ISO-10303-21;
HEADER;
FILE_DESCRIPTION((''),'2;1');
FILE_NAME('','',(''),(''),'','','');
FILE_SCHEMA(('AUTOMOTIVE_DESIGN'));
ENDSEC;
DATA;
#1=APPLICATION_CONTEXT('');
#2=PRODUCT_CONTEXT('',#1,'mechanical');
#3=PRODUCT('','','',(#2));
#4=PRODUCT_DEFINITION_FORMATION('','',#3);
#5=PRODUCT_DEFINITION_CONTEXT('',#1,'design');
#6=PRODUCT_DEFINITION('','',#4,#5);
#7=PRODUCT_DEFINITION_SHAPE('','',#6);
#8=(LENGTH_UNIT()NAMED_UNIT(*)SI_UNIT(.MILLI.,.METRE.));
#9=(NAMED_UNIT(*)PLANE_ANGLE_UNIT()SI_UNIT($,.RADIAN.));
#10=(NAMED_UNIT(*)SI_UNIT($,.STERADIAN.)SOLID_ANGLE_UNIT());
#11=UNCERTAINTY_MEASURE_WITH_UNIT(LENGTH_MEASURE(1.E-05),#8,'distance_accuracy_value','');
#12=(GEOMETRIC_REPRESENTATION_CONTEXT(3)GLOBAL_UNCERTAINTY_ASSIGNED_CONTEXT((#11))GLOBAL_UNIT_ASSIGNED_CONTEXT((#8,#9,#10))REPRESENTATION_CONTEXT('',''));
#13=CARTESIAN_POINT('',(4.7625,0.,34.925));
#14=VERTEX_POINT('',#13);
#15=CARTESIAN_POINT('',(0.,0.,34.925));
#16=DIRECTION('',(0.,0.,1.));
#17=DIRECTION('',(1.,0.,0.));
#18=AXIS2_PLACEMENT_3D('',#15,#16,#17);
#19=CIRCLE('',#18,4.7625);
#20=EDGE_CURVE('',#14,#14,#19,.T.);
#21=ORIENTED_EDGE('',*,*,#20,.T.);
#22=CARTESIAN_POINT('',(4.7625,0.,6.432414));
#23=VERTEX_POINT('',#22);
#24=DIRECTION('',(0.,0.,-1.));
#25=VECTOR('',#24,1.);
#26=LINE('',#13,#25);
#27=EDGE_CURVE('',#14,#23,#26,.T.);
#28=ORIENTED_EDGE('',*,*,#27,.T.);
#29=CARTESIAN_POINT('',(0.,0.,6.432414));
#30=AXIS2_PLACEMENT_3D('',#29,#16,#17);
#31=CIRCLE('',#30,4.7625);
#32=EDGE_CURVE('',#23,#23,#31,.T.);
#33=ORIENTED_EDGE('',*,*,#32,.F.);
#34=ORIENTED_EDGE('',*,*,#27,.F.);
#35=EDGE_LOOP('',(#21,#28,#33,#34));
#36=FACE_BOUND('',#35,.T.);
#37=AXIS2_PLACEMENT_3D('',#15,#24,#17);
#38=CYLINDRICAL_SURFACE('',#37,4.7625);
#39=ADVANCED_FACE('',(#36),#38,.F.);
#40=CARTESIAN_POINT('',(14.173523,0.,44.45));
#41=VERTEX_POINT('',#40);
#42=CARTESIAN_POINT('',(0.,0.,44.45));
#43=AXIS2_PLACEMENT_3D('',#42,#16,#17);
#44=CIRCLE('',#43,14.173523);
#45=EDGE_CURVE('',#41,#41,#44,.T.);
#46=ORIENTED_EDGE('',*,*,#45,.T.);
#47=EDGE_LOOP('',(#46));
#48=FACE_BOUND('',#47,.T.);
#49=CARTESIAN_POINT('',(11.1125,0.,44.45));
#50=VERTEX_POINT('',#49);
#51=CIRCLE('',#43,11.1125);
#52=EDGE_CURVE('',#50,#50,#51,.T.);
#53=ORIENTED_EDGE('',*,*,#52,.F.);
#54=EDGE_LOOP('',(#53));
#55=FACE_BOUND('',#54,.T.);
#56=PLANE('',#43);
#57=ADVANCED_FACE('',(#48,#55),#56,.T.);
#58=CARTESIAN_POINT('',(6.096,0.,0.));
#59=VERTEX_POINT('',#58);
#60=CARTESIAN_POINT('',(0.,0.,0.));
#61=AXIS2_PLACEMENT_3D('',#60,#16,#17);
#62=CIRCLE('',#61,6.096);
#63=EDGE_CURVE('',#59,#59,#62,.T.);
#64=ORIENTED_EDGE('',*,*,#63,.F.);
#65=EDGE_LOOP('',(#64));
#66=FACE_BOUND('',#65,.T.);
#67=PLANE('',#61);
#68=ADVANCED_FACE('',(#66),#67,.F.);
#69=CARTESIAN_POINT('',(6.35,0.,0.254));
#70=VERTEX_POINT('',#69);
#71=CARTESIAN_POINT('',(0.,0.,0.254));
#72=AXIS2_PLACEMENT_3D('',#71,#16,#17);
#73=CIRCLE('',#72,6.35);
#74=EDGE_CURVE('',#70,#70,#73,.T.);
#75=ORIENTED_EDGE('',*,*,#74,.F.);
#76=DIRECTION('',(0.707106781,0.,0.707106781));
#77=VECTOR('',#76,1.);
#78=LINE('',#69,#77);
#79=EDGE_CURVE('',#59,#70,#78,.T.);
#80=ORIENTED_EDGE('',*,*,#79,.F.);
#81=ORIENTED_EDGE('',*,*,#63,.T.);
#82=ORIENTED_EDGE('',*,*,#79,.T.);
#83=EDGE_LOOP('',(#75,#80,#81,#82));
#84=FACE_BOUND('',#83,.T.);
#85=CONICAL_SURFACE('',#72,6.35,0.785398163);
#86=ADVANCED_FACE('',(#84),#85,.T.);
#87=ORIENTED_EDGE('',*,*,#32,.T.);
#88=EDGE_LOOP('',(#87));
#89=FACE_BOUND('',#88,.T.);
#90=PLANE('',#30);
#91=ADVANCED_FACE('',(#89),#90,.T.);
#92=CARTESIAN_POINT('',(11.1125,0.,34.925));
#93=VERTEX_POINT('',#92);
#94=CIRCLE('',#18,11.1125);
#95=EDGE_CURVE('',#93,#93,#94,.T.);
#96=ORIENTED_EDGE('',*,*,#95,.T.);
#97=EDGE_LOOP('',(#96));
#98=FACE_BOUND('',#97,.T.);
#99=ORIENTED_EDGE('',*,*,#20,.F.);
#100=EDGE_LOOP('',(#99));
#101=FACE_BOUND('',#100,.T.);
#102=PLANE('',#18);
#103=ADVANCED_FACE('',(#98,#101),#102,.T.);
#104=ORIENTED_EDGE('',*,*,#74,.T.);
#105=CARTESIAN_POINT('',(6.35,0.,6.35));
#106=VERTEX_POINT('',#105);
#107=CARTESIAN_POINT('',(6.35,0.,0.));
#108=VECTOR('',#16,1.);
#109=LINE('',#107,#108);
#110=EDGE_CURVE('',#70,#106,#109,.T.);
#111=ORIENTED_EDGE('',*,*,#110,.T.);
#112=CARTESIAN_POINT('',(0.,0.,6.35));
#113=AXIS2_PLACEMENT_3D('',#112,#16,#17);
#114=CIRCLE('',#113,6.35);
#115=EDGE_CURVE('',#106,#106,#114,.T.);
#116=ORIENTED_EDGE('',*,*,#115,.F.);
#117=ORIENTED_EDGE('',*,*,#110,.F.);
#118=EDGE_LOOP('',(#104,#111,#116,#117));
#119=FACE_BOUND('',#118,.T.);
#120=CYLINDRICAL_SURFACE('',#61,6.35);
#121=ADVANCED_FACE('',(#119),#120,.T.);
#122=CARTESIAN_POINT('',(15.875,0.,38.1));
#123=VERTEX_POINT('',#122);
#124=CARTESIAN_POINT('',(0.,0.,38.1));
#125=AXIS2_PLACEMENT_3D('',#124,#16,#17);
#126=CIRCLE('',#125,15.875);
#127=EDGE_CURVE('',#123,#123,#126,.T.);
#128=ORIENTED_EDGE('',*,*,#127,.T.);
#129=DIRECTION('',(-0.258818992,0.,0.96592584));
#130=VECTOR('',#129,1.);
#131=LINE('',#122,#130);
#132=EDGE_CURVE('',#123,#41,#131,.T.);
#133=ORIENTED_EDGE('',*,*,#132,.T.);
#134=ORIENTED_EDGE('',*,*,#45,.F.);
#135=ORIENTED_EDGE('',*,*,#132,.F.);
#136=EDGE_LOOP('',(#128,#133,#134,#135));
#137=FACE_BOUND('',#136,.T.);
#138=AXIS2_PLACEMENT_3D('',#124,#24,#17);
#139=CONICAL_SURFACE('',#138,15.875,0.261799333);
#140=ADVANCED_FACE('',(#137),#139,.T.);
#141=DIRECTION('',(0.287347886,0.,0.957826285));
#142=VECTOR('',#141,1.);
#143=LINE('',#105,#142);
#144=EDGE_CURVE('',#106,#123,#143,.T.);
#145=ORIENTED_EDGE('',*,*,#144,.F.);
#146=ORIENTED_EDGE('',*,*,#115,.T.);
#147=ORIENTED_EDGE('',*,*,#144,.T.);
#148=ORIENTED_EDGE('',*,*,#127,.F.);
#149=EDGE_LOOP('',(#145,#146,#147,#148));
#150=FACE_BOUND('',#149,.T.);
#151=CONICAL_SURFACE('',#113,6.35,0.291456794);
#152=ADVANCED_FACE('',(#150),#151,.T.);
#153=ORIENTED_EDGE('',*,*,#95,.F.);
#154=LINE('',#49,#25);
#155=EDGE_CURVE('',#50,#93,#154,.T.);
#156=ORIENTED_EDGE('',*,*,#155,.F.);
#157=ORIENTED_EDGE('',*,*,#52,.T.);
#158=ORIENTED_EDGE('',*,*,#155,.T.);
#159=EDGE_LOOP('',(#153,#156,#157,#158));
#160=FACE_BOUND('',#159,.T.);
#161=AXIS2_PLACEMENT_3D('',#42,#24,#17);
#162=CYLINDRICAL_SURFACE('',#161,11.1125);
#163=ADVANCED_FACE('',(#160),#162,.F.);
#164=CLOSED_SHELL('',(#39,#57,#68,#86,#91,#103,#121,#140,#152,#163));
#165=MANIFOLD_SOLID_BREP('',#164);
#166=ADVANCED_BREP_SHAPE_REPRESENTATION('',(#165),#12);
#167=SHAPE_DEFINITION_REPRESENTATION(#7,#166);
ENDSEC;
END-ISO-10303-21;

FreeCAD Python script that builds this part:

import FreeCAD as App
import Part
import Sketcher
Q = App.Units.Quantity


def edges_at(feature, points):
    """Names of the edges that pass closest to the given points."""
    edges = feature.Shape.Edges
    near = lambda p: min(range(len(edges)), key=lambda i: edges[i].distToShape(Part.Vertex(*p))[0])
    return sorted({f"Edge{near(p) + 1}" for p in points})

doc = App.newDocument("Part")
body = doc.addObject("PartDesign::Body", "Body")

# Sketch on XZ plane
sketch1 = body.newObject("Sketcher::SketchObject", "Sketch")
sketch1.AttachmentSupport = (doc.getObject("XZ_Plane"), [""])
sketch1.MapMode = "FlatFace"
sketch1.addGeometry(Part.LineSegment(App.Vector(6.3, 6.3, 0), App.Vector(15.9, 38.1, 0)), False)
sketch1.addGeometry(Part.LineSegment(App.Vector(15.9, 38.1, 0), App.Vector(14.2, 44.5, 0)), False)
sketch1.addGeometry(Part.LineSegment(App.Vector(14.2, 44.5, 0), App.Vector(11.1, 44.5, 0)), False)
sketch1.addGeometry(Part.LineSegment(App.Vector(11.1, 44.5, 0), App.Vector(11.1, 34.9, 0)), False)
sketch1.addGeometry(Part.LineSegment(App.Vector(11.1, 34.9, 0), App.Vector(4.8, 34.9, 0)), False)
sketch1.addGeometry(Part.LineSegment(App.Vector(4.8, 34.9, 0), App.Vector(4.8, 6.4, 0)), False)
sketch1.addGeometry(Part.LineSegment(App.Vector(4.8, 6.4, 0), App.Vector(0, 6.4, 0)), False)
sketch1.addGeometry(Part.LineSegment(App.Vector(0, 6.4, 0), App.Vector(0, 0, 0)), False)
sketch1.addGeometry(Part.LineSegment(App.Vector(0, 0, 0), App.Vector(6.3, 0, 0)), False)
sketch1.addGeometry(Part.LineSegment(App.Vector(6.3, 0, 0), App.Vector(6.3, 6.3, 0)), False)
sketch1.addConstraint(Sketcher.Constraint("Coincident", 0, 2, 1, 1))
sketch1.addConstraint(Sketcher.Constraint("Coincident", 1, 2, 2, 1))
sketch1.addConstraint(Sketcher.Constraint("Coincident", 2, 2, 3, 1))
sketch1.addConstraint(Sketcher.Constraint("Coincident", 3, 2, 4, 1))
sketch1.addConstraint(Sketcher.Constraint("Coincident", 4, 2, 5, 1))
sketch1.addConstraint(Sketcher.Constraint("Coincident", 5, 2, 6, 1))
sketch1.addConstraint(Sketcher.Constraint("Coincident", 6, 2, 7, 1))
sketch1.addConstraint(Sketcher.Constraint("Coincident", 7, 2, 8, 1))
sketch1.addConstraint(Sketcher.Constraint("Coincident", 8, 2, 9, 1))
sketch1.addConstraint(Sketcher.Constraint("Coincident", 9, 2, 0, 1))
sketch1.addConstraint(Sketcher.Constraint("Horizontal", 2))
sketch1.addConstraint(Sketcher.Constraint("Vertical", 3))
sketch1.addConstraint(Sketcher.Constraint("Horizontal", 4))
sketch1.addConstraint(Sketcher.Constraint("Vertical", 5))
sketch1.addConstraint(Sketcher.Constraint("Horizontal", 6))
sketch1.addConstraint(Sketcher.Constraint("Vertical", 7))
sketch1.addConstraint(Sketcher.Constraint("Horizontal", 8))
sketch1.addConstraint(Sketcher.Constraint("Vertical", 9))
sketch1.addConstraint(Sketcher.Constraint("Coincident", 7, 2, -1, 1))
sketch1.addConstraint(Sketcher.Constraint("Equal", 4, 8))
sketch1.addConstraint(Sketcher.Constraint("Equal", 8, 9))
sketch1.addConstraint(Sketcher.Constraint("Angle", 1, Q("104.999997 deg")))
sketch1.addConstraint(Sketcher.Constraint("DistanceX", 4, 2, 4, 1, Q("0.25 in")))
sketch1.addConstraint(Sketcher.Constraint("DistanceY", -1, 1, 0, 2, Q("1.5 in")))
sketch1.addConstraint(Sketcher.Constraint("DistanceX", 6, 2, 6, 1, Q("0.1875 in")))
sketch1.addConstraint(Sketcher.Constraint("DistanceY", 3, 2, 3, 1, Q("0.375 in")))
sketch1.addConstraint(Sketcher.Constraint("DistanceY", -1, 1, 1, 2, Q("1.75 in")))
sketch1.addConstraint(Sketcher.Constraint("DistanceX", -1, 1, 0, 2, Q("0.625 in")))
sketch1.addConstraint(Sketcher.Constraint("DistanceY", 5, 2, 5, 1, Q("28.492586 mm")))
revolution = body.newObject("PartDesign::Revolution", "Revolution")
revolution.Profile = sketch1
revolution.ReferenceAxis = (sketch1, ["V_Axis"])
revolution.Angle = 360
doc.recompute()

chamfer = body.newObject("PartDesign::Chamfer", "Chamfer")
chamfer.Base = (revolution, edges_at(revolution, [(-6.35, 0, 0)]))
chamfer.ChamferType = "Two distances"
chamfer.Size = Q("0.01 in")
chamfer.Size2 = Q("0.01 in")

doc.recompute()
